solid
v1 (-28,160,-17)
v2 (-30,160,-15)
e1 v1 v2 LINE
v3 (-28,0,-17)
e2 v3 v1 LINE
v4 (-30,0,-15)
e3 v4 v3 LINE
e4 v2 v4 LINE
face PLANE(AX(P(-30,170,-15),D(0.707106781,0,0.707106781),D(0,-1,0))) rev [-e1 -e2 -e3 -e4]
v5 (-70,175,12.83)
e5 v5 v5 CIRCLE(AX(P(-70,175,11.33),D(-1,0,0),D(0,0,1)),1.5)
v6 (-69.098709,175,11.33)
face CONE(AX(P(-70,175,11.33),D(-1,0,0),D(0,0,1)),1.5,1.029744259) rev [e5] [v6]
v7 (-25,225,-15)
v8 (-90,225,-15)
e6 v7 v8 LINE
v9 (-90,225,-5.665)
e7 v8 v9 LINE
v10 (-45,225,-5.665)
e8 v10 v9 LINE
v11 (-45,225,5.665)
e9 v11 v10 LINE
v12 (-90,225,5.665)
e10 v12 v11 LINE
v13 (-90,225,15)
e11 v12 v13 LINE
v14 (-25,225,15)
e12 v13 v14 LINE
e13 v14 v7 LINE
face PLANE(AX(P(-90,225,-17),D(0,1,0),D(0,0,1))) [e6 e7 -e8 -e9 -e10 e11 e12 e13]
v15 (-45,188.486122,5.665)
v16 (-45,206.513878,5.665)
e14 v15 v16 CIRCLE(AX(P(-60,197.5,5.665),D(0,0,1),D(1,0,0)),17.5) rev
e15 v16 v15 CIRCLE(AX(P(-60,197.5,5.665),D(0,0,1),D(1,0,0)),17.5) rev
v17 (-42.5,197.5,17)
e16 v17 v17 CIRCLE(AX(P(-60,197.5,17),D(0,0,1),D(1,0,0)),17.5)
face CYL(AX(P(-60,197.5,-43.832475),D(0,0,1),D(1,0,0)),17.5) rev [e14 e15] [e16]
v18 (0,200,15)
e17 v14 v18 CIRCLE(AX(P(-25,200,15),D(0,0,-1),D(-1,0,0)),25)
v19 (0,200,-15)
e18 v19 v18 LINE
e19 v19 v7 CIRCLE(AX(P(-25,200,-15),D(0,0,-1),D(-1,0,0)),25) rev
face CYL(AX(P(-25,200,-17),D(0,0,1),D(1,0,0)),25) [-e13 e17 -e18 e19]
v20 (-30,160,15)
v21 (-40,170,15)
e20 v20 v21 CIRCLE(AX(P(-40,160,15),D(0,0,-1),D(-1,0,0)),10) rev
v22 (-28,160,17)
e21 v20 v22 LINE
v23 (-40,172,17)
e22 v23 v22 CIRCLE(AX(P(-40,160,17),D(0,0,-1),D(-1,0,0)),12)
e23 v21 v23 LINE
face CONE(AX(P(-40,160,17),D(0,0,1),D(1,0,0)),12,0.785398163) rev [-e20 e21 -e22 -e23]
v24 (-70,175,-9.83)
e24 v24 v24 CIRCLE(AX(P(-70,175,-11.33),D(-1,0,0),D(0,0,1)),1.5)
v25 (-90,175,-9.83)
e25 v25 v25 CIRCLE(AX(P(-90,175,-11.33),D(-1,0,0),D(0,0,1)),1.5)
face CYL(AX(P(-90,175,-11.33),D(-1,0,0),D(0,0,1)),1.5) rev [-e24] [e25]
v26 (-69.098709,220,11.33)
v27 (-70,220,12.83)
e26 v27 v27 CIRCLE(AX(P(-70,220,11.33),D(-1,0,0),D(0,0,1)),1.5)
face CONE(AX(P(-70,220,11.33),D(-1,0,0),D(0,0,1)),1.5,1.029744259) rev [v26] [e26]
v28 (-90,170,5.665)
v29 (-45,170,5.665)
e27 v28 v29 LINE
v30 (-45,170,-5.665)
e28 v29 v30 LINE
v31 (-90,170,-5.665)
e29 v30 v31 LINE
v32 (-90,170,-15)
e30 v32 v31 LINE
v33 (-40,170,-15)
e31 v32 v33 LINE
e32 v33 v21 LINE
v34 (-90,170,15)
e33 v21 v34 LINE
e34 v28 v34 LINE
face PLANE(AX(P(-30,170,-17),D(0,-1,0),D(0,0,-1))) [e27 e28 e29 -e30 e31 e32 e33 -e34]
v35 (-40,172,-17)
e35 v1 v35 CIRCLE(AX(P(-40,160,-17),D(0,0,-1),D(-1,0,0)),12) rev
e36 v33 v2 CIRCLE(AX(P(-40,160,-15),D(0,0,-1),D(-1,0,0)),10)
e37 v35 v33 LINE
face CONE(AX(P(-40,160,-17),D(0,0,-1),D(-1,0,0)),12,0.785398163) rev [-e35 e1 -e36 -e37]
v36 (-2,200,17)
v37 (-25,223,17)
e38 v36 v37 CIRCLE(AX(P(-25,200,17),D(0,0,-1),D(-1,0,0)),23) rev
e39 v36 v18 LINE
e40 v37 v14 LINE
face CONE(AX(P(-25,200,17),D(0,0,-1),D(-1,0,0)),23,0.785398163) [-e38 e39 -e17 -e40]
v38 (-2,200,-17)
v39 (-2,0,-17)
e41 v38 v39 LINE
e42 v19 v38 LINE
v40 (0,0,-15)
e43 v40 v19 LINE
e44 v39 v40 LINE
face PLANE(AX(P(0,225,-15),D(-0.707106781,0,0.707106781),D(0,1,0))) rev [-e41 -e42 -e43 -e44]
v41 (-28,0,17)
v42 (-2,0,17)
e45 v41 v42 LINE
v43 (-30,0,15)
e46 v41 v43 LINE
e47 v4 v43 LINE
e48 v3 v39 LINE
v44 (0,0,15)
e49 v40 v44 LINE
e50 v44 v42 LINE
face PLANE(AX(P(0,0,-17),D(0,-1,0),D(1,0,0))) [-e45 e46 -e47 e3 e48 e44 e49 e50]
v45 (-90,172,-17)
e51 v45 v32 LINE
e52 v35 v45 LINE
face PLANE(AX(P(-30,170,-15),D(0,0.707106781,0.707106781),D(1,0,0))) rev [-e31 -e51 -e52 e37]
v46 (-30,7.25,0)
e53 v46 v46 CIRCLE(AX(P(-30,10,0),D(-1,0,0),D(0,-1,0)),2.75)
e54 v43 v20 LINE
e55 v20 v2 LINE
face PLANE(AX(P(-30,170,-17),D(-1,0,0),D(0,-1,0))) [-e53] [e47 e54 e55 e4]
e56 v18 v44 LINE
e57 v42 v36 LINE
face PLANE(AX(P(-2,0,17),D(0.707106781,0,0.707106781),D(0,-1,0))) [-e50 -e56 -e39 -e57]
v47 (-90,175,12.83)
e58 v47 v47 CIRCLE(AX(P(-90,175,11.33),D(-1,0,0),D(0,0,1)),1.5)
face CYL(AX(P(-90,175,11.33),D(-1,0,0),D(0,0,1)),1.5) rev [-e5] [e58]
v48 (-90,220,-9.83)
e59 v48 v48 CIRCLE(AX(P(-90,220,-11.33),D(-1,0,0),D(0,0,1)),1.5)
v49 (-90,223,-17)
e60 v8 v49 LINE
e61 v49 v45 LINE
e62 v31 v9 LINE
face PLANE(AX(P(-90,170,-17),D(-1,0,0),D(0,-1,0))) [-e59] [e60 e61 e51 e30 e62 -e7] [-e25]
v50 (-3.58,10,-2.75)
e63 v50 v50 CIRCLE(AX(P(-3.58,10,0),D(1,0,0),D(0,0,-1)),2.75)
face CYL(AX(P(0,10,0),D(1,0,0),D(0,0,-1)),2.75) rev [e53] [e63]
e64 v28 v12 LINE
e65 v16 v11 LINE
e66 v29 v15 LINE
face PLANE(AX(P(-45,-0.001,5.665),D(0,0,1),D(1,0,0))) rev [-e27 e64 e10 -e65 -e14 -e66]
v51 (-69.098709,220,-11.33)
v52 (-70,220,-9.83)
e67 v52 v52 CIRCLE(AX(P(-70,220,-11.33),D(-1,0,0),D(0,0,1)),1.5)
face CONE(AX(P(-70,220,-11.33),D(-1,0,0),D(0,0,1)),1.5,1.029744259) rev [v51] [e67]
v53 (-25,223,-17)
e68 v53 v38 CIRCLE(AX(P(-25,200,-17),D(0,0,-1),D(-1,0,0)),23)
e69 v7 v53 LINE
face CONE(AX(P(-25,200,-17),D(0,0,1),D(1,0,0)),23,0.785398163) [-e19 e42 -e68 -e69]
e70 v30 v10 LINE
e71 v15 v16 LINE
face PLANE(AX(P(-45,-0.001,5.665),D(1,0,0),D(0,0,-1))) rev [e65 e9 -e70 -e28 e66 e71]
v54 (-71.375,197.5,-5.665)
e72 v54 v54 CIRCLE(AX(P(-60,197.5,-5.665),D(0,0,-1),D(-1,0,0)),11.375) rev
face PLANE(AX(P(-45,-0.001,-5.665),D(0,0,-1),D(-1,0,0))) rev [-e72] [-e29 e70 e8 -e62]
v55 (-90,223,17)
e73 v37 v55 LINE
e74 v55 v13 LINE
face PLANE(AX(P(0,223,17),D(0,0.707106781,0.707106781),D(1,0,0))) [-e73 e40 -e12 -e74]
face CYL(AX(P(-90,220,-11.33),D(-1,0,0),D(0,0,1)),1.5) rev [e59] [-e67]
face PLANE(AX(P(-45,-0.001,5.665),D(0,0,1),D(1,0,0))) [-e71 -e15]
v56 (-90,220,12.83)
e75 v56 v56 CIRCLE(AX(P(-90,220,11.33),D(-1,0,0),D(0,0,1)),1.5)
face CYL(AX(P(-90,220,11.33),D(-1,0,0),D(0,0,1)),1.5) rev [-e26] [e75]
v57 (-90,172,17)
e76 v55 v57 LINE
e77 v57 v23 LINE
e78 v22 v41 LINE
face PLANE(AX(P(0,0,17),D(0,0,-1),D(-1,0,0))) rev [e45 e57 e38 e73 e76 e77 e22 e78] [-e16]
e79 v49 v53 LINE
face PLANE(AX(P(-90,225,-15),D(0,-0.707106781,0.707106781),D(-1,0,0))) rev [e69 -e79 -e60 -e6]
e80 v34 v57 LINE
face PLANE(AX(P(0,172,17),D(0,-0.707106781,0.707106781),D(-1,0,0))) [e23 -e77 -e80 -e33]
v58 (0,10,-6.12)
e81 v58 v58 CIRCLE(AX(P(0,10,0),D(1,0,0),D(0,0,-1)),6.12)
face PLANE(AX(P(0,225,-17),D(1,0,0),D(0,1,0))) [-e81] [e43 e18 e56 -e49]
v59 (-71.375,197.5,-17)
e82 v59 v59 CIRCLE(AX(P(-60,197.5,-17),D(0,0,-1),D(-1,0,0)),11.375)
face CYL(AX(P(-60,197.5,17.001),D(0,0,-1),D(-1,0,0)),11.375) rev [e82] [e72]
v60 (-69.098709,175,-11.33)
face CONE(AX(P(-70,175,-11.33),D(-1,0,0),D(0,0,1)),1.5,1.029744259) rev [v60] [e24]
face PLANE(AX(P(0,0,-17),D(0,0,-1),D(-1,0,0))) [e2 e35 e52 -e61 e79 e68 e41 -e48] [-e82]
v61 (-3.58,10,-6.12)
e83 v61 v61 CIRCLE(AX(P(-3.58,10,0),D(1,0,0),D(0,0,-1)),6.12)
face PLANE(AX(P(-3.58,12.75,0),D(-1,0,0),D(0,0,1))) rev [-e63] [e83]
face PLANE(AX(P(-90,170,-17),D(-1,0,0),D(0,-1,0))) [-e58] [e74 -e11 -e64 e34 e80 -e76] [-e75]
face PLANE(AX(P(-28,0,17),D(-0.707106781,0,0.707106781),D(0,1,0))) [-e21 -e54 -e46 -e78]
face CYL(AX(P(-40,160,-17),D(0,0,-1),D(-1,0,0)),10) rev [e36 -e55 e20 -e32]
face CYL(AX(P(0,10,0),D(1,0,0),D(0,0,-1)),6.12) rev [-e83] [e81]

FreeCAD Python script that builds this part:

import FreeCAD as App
import Part
import Sketcher

V = App.Vector
Q = App.Units.Quantity


def edges_at(feature, points):
    """Names of the edges that pass closest to the given points."""
    edges = feature.Shape.Edges
    near = lambda p: min(range(len(edges)), key=lambda i: edges[i].distToShape(Part.Vertex(*p))[0])
    return sorted({f"Edge{near(p) + 1}" for p in points})


def add_polygon(sketch, points):
    """Adds a closed chain of lines whose ends are joined by coincident constraints."""
    first, n = sketch.GeometryCount, len(points)
    for a, b in zip(points, points[1:] + points[:1]):
        sketch.addGeometry(Part.LineSegment(App.Vector(*a, 0), App.Vector(*b, 0)), False)
    for i in range(n):
        sketch.addConstraint(Sketcher.Constraint("Coincident", first + i, 2, first + (i + 1) % n, 1))

doc = App.newDocument("Part")
body = doc.addObject("PartDesign::Body", "Body")

# Sketch on XY plane
sketch1 = doc.addObject("Sketcher::SketchObject", "Sketch")
body.addObject(sketch1)
sketch1.AttachmentSupport = (doc.XY_Plane, [""])
sketch1.MapMode = "FlatFace"
add_polygon(sketch1, [(-30, 0), (0, 0), (0, 225), (-90, 225), (-90, 170), (-30, 170)])  # lines 0-5
sketch1.addConstraint(Sketcher.Constraint("Horizontal", 0))
sketch1.addConstraint(Sketcher.Constraint("Vertical", 1))
sketch1.addConstraint(Sketcher.Constraint("Horizontal", 2))
sketch1.addConstraint(Sketcher.Constraint("Vertical", 3))
sketch1.addConstraint(Sketcher.Constraint("Horizontal", 4))
sketch1.addConstraint(Sketcher.Constraint("Vertical", 5))
sketch1.addConstraint(Sketcher.Constraint("Coincident", 0, 2, -1, 1))
sketch1.addConstraint(Sketcher.Constraint("DistanceX", 0, 1, 0, 2, Q("30 mm")))
sketch1.addConstraint(Sketcher.Constraint("DistanceX", 2, 2, 2, 1, Q("90 mm")))
sketch1.addConstraint(Sketcher.Constraint("DistanceY", 1, 1, 1, 2, Q("225 mm")))
sketch1.addConstraint(Sketcher.Constraint("DistanceY", 3, 2, 3, 1, Q("55 mm")))
pad1 = doc.addObject("PartDesign::Pad", "Pad")
body.addObject(pad1)
pad1.Profile = sketch1
pad1.Length = 34
pad1.Midplane = True

# Sketch on XZ plane
sketch2 = doc.addObject("Sketcher::SketchObject", "Sketch001")
body.addObject(sketch2)
sketch2.AttachmentSupport = (doc.XZ_Plane, [""])
sketch2.MapMode = "FlatFace"
sketch2.AttachmentOffset = App.Placement(V(0, 0, -225), App.Rotation())
add_polygon(sketch2, [(-90, -5.665), (-90, 5.665), (-45, 5.665), (-45, -5.665)])  # lines 0-3
sketch2.addConstraint(Sketcher.Constraint("Vertical", 0))
sketch2.addConstraint(Sketcher.Constraint("Horizontal", 1))
sketch2.addConstraint(Sketcher.Constraint("Vertical", 2))
sketch2.addConstraint(Sketcher.Constraint("Horizontal", 3))
sketch2.addConstraint(Sketcher.Constraint("DistanceX", 1, 1, 1, 2, Q("45 mm")))
sketch2.addConstraint(Sketcher.Constraint("DistanceX", 0, 2, -1, 1, Q("90 mm")))
sketch2.addConstraint(Sketcher.Constraint("DistanceY", 0, 1, 0, 2, Q("11.33 mm")))
sketch2.addConstraint(Sketcher.Constraint("DistanceY", -1, 1, 0, 2, Q("5.665 mm")))
pocket1 = doc.addObject("PartDesign::Pocket", "Pocket")
body.addObject(pocket1)
pocket1.Profile = sketch2
pocket1.Type = "UpToFirst"
pocket1.Reversed = True
doc.recompute()

fillet = doc.addObject("PartDesign::Fillet", "Fillet")
body.addObject(fillet)
fillet.Base = (pocket1, edges_at(pocket1, [(0, 225, 0)]))
fillet.Radius = 25
doc.recompute()

fillet2 = doc.addObject("PartDesign::Fillet", "Fillet001")
body.addObject(fillet2)
fillet2.Base = (fillet, edges_at(fillet, [(-30, 170, 0)]))
fillet2.Radius = 10

# Sketch on XY plane
sketch3 = doc.addObject("Sketcher::SketchObject", "Sketch002")
body.addObject(sketch3)
sketch3.AttachmentSupport = (doc.XY_Plane, [""])
sketch3.MapMode = "FlatFace"
sketch3.AttachmentOffset = App.Placement(V(0, 0, 17), App.Rotation())
sketch3.addGeometry(Part.Circle(V(-60, 197.5, 0), V(0, 0, 1), 17.5), False)
sketch3.addConstraint(Sketcher.Constraint("Diameter", 0, Q("35 mm")))
sketch3.addConstraint(Sketcher.Constraint("DistanceX", 0, 3, -1, 1, Q("60 mm")))
sketch3.addConstraint(Sketcher.Constraint("DistanceY", -1, 1, 0, 3, Q("197.5 mm")))
pocket2 = doc.addObject("PartDesign::Pocket", "Pocket001")
body.addObject(pocket2)
pocket2.Profile = sketch3
pocket2.Length = 11.335

# Sketch on XY plane
sketch4 = doc.addObject("Sketcher::SketchObject", "Sketch003")
body.addObject(sketch4)
sketch4.AttachmentSupport = (doc.XY_Plane, [""])
sketch4.MapMode = "FlatFace"
sketch4.AttachmentOffset = App.Placement(V(0, 0, -17), App.Rotation())
sketch4.addGeometry(Part.Circle(V(-60, 197.5, 0), V(0, 0, 1), 11.375), False)
sketch4.addConstraint(Sketcher.Constraint("Diameter", 0, Q("22.75 mm")))
sketch4.addConstraint(Sketcher.Constraint("DistanceX", 0, 3, -1, 1, Q("60 mm")))
sketch4.addConstraint(Sketcher.Constraint("DistanceY", -1, 1, 0, 3, Q("197.5 mm")))
pocket3 = doc.addObject("PartDesign::Pocket", "Pocket002")
body.addObject(pocket3)
pocket3.Profile = sketch4
pocket3.Type = "UpToFirst"
pocket3.Reversed = True
doc.recompute()

chamfer = doc.addObject("PartDesign::Chamfer", "Chamfer")
body.addObject(chamfer)
chamfer.Base = (pocket3, edges_at(pocket3, [
    (-65, 170, -17),
    (-57.5, 225, 17),
    (-7.322, 217.678, 17),
    (-57.5, 225, -17),
    (-7.322, 217.678, -17),
    (-30, 80, 17),
    (-30, 80, -17),
    (-32.929, 167.071, 17),
    (-32.929, 167.071, -17),
    (0, 100, -17),
    (-65, 170, 17),
    (0, 100, 17),
]))
chamfer.Size = 2

# Sketch on YZ plane
sketch5 = doc.addObject("Sketcher::SketchObject", "Sketch004")
body.addObject(sketch5)
sketch5.AttachmentSupport = (doc.YZ_Plane, [""])
sketch5.MapMode = "FlatFace"
sketch5.addGeometry(Part.Circle(V(10, 0, 0), V(0, 0, 1), 2.75), False)
sketch5.addConstraint(Sketcher.Constraint("PointOnObject", 0, 3, -1))
sketch5.addConstraint(Sketcher.Constraint("Diameter", 0, Q("5.5 mm")))
sketch5.addConstraint(Sketcher.Constraint("DistanceX", -1, 1, 0, 3, Q("10 mm")))
doc.recompute()
hole = doc.addObject("PartDesign::Hole", "Hole")
body.addObject(hole)
hole.Profile = sketch5
hole.ThreadType = "None"
hole.Diameter = 5.5
hole.DepthType = "ThroughAll"
hole.HoleCutType = "Counterbore"
hole.HoleCutDiameter = 12.24
hole.HoleCutDepth = 3.58

# Sketch on YZ plane
sketch6 = doc.addObject("Sketcher::SketchObject", "Sketch005")
body.addObject(sketch6)
sketch6.AttachmentSupport = (doc.YZ_Plane, [""])
sketch6.MapMode = "FlatFace"
sketch6.AttachmentOffset = App.Placement(V(0, 0, -90), App.Rotation())
sketch6.addGeometry(Part.Circle(V(220, 11.33, 0), V(0, 0, 1), 1.5), False)
sketch6.addGeometry(Part.Circle(V(175, -11.33, 0), V(0, 0, 1), 1.5), False)
sketch6.addGeometry(Part.Circle(V(220, -11.33, 0), V(0, 0, 1), 1.5), False)
sketch6.addGeometry(Part.Circle(V(175, 11.33, 0), V(0, 0, 1), 1.5), False)
sketch6.addConstraint(Sketcher.Constraint("Equal", 0, 1))
sketch6.addConstraint(Sketcher.Constraint("Equal", 1, 2))
sketch6.addConstraint(Sketcher.Constraint("Equal", 2, 3))
sketch6.addConstraint(Sketcher.Constraint("Symmetric", 0, 3, 2, 3, -1))
sketch6.addConstraint(Sketcher.Constraint("Symmetric", 1, 3, 3, 3, -1))
sketch6.addConstraint(Sketcher.Constraint("Horizontal", 1, 3, 2, 3))
sketch6.addConstraint(Sketcher.Constraint("Diameter", 0, Q("3 mm")))
sketch6.addConstraint(Sketcher.Constraint("DistanceX", -1, 1, 0, 3, Q("220 mm")))
sketch6.addConstraint(Sketcher.Constraint("DistanceX", -1, 1, 1, 3, Q("175 mm")))
sketch6.addConstraint(Sketcher.Constraint("DistanceY", -1, 1, 0, 3, Q("11.33 mm")))
doc.recompute()
hole2 = doc.addObject("PartDesign::Hole", "Hole001")
body.addObject(hole2)
hole2.Profile = sketch6
hole2.ThreadType = "None"
hole2.Diameter = 3
hole2.DepthType = "Dimension"
hole2.Depth = 20
hole2.DrillPoint = "Angled"
hole2.DrillPointAngle = 118
hole2.Reversed = True

doc.recompute()
